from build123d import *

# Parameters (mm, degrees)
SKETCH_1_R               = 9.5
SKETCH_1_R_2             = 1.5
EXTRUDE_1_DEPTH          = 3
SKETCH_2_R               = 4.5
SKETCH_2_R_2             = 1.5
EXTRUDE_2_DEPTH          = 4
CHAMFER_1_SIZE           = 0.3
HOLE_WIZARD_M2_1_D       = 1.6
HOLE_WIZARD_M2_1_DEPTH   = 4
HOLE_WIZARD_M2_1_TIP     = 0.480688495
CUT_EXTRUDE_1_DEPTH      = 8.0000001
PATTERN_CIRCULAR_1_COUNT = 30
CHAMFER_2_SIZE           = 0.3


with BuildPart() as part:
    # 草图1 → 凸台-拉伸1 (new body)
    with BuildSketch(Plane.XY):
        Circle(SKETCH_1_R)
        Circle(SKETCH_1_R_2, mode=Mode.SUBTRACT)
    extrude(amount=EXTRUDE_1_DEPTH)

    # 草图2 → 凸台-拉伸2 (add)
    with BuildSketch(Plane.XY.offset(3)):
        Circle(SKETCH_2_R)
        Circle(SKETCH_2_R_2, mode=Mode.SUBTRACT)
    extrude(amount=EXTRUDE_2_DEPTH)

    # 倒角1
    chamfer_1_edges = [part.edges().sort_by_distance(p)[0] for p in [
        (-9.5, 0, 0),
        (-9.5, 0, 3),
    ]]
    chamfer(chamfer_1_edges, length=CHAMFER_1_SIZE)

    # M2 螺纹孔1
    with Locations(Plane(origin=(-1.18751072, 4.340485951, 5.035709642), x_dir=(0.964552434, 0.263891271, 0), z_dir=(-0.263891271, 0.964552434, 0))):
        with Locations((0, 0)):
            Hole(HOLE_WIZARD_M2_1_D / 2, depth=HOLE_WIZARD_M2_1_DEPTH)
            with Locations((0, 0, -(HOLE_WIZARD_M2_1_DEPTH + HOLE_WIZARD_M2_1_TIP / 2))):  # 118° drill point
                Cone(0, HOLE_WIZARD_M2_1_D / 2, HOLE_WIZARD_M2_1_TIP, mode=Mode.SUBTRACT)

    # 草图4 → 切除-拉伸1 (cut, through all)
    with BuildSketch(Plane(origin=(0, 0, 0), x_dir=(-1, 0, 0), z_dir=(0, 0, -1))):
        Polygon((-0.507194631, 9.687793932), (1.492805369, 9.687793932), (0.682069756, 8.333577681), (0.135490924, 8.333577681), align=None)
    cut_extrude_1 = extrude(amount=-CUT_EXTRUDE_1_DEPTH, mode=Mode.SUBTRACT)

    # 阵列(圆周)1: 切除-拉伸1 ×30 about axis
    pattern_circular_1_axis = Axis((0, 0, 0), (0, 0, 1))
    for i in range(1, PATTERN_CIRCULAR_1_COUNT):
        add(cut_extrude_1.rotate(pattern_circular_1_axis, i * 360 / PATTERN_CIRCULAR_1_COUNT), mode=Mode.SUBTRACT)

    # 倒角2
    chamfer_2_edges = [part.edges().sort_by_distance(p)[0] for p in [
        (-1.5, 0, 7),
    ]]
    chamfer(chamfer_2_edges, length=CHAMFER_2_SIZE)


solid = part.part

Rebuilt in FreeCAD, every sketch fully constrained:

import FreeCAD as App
import Part
import Sketcher

V = App.Vector


def edges_at(feature, points):
    """Names of the edges that pass closest to the given points."""
    edges = feature.Shape.Edges
    near = lambda p: min(range(len(edges)), key=lambda i: edges[i].distToShape(Part.Vertex(*p))[0])
    return sorted({f"Edge{near(p) + 1}" for p in points})

doc = App.newDocument("Part")
body = doc.addObject("PartDesign::Body", "Body")

sketch1 = body.newObject("Sketcher::SketchObject", "Sketch")
sketch1.AttachmentSupport = (doc.getObject("XY_Plane"), [""])
sketch1.MapMode = "FlatFace"
sketch1.addGeometry(Part.Circle(V(0, 0, 0), V(0, 0, 1), 9.5), False)
sketch1.addGeometry(Part.Circle(V(0, 0, 0), V(0, 0, 1), 1.5), False)
sketch1.addConstraint(Sketcher.Constraint("Coincident", 0, 3, -1, 1))
sketch1.addConstraint(Sketcher.Constraint("Coincident", 1, 3, -1, 1))
sketch1.addConstraint(Sketcher.Constraint("Diameter", 0, 19.0))
sketch1.addConstraint(Sketcher.Constraint("Diameter", 1, 3.0))
pad1 = body.newObject("PartDesign::Pad", "Pad")
pad1.Profile = sketch1
pad1.Length = 3

sketch2 = body.newObject("Sketcher::SketchObject", "Sketch001")
sketch2.AttachmentSupport = (doc.getObject("XY_Plane"), [""])
sketch2.MapMode = "FlatFace"
sketch2.AttachmentOffset = App.Placement(V(0, 0, 3), App.Rotation())
sketch2.addGeometry(Part.Circle(V(0, 0, 0), V(0, 0, 1), 4.5), False)
sketch2.addGeometry(Part.Circle(V(0, 0, 0), V(0, 0, 1), 1.5), False)
sketch2.addConstraint(Sketcher.Constraint("Coincident", 0, 3, -1, 1))
sketch2.addConstraint(Sketcher.Constraint("Coincident", 1, 3, -1, 1))
sketch2.addConstraint(Sketcher.Constraint("Diameter", 0, 9.0))
sketch2.addConstraint(Sketcher.Constraint("Diameter", 1, 3.0))
pad2 = body.newObject("PartDesign::Pad", "Pad001")
pad2.Profile = sketch2
pad2.Length = 4
doc.recompute()

chamfer = body.newObject("PartDesign::Chamfer", "Chamfer")
chamfer.Base = (pad2, edges_at(pad2, [(-9.5, 0, 0), (-9.5, 0, 3)]))
chamfer.Size = 0.3

sketch3 = body.newObject("Sketcher::SketchObject", "Sketch002")
sketch3.Placement = App.Placement(V(-1.187511, 4.340486, 0), App.Rotation(V(0.964552434, 0.263891271, 0), V(0, 0, -1.000000001), V(-0.263891271, 0.964552434, 0), "ZXY"))
sketch3.addGeometry(Part.Circle(V(0, -5.03571, 0), V(0, 0, 1), 0.8), False)
sketch3.addConstraint(Sketcher.Constraint("PointOnObject", 0, 3, -2))
sketch3.addConstraint(Sketcher.Constraint("Diameter", 0, 1.6))
sketch3.addConstraint(Sketcher.Constraint("DistanceY", 0, 3, -1, 1, 5.03571))
doc.recompute()
hole = body.newObject("PartDesign::Hole", "Hole")
hole.Profile = sketch3
hole.ThreadType = "None"
hole.Diameter = 1.6
hole.DepthType = "Dimension"
hole.Depth = 4
hole.DrillPoint = "Angled"
hole.DrillPointAngle = 118

sketch4 = body.newObject("Sketcher::SketchObject", "Sketch003")
sketch4.AttachmentSupport = (doc.getObject("XY_Plane"), [""])
sketch4.MapMode = "FlatFace"
sketch4.addGeometry(Part.LineSegment(V(-1.492805, 9.687794, 0), V(0.507195, 9.687794, 0)), False)
sketch4.addGeometry(Part.LineSegment(V(0.507195, 9.687794, 0), V(-0.135491, 8.333578, 0)), False)
sketch4.addGeometry(Part.LineSegment(V(-0.135491, 8.333578, 0), V(-0.68207, 8.333578, 0)), False)
sketch4.addGeometry(Part.LineSegment(V(-0.68207, 8.333578, 0), V(-1.492805, 9.687794, 0)), False)
sketch4.addConstraint(Sketcher.Constraint("Coincident", 0, 2, 1, 1))
sketch4.addConstraint(Sketcher.Constraint("Coincident", 1, 2, 2, 1))
sketch4.addConstraint(Sketcher.Constraint("Coincident", 2, 2, 3, 1))
sketch4.addConstraint(Sketcher.Constraint("Coincident", 3, 2, 0, 1))
sketch4.addConstraint(Sketcher.Constraint("Horizontal", 0))
sketch4.addConstraint(Sketcher.Constraint("Horizontal", 2))
sketch4.addConstraint(Sketcher.Constraint("DistanceX", 0, 1, 0, 2, 2.0))
sketch4.addConstraint(Sketcher.Constraint("DistanceX", 2, 2, 2, 1, 0.546579))
sketch4.addConstraint(Sketcher.Constraint("Distance", 1, 1.498982))
sketch4.addConstraint(Sketcher.Constraint("Distance", 3, 1.578352))
sketch4.addConstraint(Sketcher.Constraint("DistanceX", 1, 2, -1, 1, 0.135491))
sketch4.addConstraint(Sketcher.Constraint("DistanceY", -1, 1, 0, 2, 9.687794))
pocket1 = body.newObject("PartDesign::Pocket", "Pocket")
pocket1.Profile = sketch4
pocket1.Type = "ThroughAll"
pocket1.Reversed = True
doc.recompute()

polarpattern = body.newObject("PartDesign::PolarPattern", "PolarPattern")
polarpattern.Originals = [pocket1]
polarpattern.Axis = (doc.getObject("Z_Axis"), [""])
polarpattern.Angle = 360
polarpattern.Occurrences = 30
body.Tip = polarpattern
doc.recompute()

chamfer2 = body.newObject("PartDesign::Chamfer", "Chamfer001")
chamfer2.Base = (polarpattern, edges_at(polarpattern, [(-1.5, 0, 7)]))
chamfer2.Size = 0.3

doc.recompute()
